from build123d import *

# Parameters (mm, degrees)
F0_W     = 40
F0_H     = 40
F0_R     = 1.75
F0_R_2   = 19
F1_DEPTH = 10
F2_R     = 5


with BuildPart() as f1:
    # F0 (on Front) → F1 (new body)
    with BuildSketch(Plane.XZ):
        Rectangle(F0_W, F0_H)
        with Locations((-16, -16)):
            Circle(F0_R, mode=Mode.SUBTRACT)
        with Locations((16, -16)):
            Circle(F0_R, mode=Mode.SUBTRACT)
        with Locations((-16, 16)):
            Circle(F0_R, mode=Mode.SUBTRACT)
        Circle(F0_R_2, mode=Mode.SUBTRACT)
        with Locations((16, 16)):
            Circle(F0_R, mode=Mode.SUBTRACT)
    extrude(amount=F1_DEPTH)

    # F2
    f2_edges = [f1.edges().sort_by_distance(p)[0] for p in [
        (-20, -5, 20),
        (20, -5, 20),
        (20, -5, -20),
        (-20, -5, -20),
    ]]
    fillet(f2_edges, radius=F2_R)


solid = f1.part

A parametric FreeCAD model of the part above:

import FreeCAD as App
import Part
import Sketcher

V = App.Vector
Q = App.Units.Quantity


def edges_at(feature, points):
    """Names of the edges that pass closest to the given points."""
    edges = feature.Shape.Edges
    near = lambda p: min(range(len(edges)), key=lambda i: edges[i].distToShape(Part.Vertex(*p))[0])
    return sorted({f"Edge{near(p) + 1}" for p in points})

doc = App.newDocument("Part")
body = doc.addObject("PartDesign::Body", "Body")

# Sketch on XZ plane
sketch1 = body.newObject("Sketcher::SketchObject", "Sketch")
sketch1.AttachmentSupport = (doc.getObject("XZ_Plane"), [""])
sketch1.MapMode = "FlatFace"
sketch1.addGeometry([
    Part.LineSegment(V(-20, 20, 0), V(-20, -20, 0)),  # 0
    Part.LineSegment(V(-20, -20, 0), V(20, -20, 0)),  # 1
    Part.LineSegment(V(20, -20, 0), V(20, 20, 0)),  # 2
    Part.LineSegment(V(20, 20, 0), V(-20, 20, 0)),  # 3
    Part.Circle(V(-16, -16, 0), V(0, 0, 1), 1.75),  # 4
    Part.Circle(V(16, -16, 0), V(0, 0, 1), 1.75),  # 5
    Part.Circle(V(-16, 16, 0), V(0, 0, 1), 1.75),  # 6
    Part.Circle(V(0, 0, 0), V(0, 0, 1), 19),  # 7
    Part.Circle(V(16, 16, 0), V(0, 0, 1), 1.75),  # 8
], False)
sketch1.addConstraint([
    Sketcher.Constraint("Coincident", 0, 2, 1, 1),
    Sketcher.Constraint("Coincident", 1, 2, 2, 1),
    Sketcher.Constraint("Coincident", 2, 2, 3, 1),
    Sketcher.Constraint("Coincident", 3, 2, 0, 1),
    Sketcher.Constraint("Vertical", 0),
    Sketcher.Constraint("Horizontal", 1),
    Sketcher.Constraint("Vertical", 2),
    Sketcher.Constraint("Horizontal", 3),
    Sketcher.Constraint("Coincident", 7, 3, -1, 1),
    Sketcher.Constraint("Equal", 4, 5),
    Sketcher.Constraint("Equal", 5, 6),
    Sketcher.Constraint("Equal", 6, 8),
    Sketcher.Constraint("Symmetric", 5, 3, 6, 3, -1, 1),
    Sketcher.Constraint("Symmetric", 4, 3, 8, 3, -1, 1),
    Sketcher.Constraint("Symmetric", 0, 2, 2, 2, -1, 1),
    Sketcher.Constraint("Symmetric", 4, 3, 5, 3, -2),
    Sketcher.Constraint("Equal", 3, 0),
    Sketcher.Constraint("Diameter", 7, Q("38 mm")),
    Sketcher.Constraint("Diameter", 4, Q("3.5 mm")),
    Sketcher.Constraint("DistanceX", 1, 1, 1, 2, Q("40 mm")),
    Sketcher.Constraint("DistanceX", 4, 3, -1, 1, Q("16 mm")),
    Sketcher.Constraint("DistanceY", 4, 3, -1, 1, Q("16 mm")),
])
pad1 = body.newObject("PartDesign::Pad", "Pad")
pad1.Profile = sketch1
pad1.Length = 10
doc.recompute()

fillet = body.newObject("PartDesign::Fillet", "Fillet")
fillet.Base = (pad1, edges_at(pad1, [
    (-20, -5, 20),
    (20, -5, 20),
    (20, -5, -20),
    (-20, -5, -20),
]))
fillet.Radius = 5

doc.recompute()
